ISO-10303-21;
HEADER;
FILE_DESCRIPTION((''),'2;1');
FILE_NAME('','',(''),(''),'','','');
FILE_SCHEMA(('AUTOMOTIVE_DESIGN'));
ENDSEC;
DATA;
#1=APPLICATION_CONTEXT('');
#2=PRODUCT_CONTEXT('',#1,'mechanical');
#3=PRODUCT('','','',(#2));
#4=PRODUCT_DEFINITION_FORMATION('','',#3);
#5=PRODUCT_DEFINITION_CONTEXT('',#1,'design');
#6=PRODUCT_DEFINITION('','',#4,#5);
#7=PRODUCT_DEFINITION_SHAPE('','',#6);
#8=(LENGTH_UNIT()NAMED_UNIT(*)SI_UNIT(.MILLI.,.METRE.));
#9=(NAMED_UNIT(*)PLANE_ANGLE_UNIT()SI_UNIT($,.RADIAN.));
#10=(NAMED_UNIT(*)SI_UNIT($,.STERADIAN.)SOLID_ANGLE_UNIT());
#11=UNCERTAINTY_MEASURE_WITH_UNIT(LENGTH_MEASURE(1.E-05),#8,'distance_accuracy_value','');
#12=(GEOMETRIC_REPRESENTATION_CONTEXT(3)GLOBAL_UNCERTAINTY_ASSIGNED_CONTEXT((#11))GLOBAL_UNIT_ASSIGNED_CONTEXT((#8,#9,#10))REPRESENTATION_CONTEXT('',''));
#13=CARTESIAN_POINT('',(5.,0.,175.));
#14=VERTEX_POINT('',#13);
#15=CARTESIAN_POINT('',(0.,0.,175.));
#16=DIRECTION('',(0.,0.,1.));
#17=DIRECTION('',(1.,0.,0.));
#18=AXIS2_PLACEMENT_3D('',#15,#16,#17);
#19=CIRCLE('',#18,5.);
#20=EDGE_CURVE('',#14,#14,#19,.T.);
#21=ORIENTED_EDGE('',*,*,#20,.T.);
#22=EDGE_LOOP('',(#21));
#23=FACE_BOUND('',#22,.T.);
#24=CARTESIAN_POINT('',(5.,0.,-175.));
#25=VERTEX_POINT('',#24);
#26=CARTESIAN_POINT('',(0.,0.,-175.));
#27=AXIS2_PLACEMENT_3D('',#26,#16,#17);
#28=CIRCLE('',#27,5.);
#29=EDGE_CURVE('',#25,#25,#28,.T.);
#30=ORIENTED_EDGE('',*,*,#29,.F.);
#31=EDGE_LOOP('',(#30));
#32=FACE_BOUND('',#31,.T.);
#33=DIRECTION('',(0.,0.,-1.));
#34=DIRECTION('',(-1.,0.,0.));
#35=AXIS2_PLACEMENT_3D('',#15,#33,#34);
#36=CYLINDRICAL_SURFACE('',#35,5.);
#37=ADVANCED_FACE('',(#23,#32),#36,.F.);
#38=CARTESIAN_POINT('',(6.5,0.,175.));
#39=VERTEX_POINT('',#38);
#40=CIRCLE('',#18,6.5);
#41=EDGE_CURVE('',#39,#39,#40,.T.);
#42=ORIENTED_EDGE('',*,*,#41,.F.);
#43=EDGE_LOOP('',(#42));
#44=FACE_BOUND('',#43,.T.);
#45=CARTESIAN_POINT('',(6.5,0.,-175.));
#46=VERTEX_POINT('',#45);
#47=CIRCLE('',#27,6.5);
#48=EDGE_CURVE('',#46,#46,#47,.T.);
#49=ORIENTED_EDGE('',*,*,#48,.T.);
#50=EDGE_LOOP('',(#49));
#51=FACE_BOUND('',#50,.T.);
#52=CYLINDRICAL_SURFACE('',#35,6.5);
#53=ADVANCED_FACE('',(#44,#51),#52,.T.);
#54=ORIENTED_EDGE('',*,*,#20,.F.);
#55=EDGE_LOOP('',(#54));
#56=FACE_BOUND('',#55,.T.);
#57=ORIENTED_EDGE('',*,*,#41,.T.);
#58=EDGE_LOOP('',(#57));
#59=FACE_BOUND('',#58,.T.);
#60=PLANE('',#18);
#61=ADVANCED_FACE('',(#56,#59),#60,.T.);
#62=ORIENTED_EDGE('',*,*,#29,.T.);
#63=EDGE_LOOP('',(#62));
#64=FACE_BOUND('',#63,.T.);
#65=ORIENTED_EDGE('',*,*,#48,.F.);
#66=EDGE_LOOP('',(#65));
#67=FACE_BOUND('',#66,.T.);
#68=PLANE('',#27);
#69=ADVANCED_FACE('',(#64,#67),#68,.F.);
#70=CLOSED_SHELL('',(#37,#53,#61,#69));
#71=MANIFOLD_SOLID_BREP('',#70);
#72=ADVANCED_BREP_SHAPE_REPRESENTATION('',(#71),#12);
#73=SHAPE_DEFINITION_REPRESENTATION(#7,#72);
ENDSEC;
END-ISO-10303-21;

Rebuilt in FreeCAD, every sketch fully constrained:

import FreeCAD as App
import Part
import Sketcher
from FreeCAD import Vector

doc = App.newDocument("Part")
body = doc.addObject("PartDesign::Body", "Body")

# Sketch on XY plane
sketch1 = body.newObject("Sketcher::SketchObject", "Sketch")
sketch1.AttachmentSupport = (doc.getObject("XY_Plane"), [""])
sketch1.MapMode = "FlatFace"
sketch1.addGeometry([
    Part.Circle(Vector(0, 0, 0), Vector(0, 0, 1), 6),
    Part.Circle(Vector(0, 0, 0), Vector(0, 0, 1), 5),
], False)
sketch1.addConstraint([
    Sketcher.Constraint("Coincident", 0, 3, -1, 1),
    Sketcher.Constraint("Coincident", 1, 3, -1, 1),
    Sketcher.Constraint("Diameter", 0, 13.0),
    Sketcher.Constraint("Diameter", 1, 10.0),
])
pad1 = body.newObject("PartDesign::Pad", "Pad")
pad1.Profile = sketch1
pad1.Length = 350
pad1.Midplane = True

doc.recompute()
